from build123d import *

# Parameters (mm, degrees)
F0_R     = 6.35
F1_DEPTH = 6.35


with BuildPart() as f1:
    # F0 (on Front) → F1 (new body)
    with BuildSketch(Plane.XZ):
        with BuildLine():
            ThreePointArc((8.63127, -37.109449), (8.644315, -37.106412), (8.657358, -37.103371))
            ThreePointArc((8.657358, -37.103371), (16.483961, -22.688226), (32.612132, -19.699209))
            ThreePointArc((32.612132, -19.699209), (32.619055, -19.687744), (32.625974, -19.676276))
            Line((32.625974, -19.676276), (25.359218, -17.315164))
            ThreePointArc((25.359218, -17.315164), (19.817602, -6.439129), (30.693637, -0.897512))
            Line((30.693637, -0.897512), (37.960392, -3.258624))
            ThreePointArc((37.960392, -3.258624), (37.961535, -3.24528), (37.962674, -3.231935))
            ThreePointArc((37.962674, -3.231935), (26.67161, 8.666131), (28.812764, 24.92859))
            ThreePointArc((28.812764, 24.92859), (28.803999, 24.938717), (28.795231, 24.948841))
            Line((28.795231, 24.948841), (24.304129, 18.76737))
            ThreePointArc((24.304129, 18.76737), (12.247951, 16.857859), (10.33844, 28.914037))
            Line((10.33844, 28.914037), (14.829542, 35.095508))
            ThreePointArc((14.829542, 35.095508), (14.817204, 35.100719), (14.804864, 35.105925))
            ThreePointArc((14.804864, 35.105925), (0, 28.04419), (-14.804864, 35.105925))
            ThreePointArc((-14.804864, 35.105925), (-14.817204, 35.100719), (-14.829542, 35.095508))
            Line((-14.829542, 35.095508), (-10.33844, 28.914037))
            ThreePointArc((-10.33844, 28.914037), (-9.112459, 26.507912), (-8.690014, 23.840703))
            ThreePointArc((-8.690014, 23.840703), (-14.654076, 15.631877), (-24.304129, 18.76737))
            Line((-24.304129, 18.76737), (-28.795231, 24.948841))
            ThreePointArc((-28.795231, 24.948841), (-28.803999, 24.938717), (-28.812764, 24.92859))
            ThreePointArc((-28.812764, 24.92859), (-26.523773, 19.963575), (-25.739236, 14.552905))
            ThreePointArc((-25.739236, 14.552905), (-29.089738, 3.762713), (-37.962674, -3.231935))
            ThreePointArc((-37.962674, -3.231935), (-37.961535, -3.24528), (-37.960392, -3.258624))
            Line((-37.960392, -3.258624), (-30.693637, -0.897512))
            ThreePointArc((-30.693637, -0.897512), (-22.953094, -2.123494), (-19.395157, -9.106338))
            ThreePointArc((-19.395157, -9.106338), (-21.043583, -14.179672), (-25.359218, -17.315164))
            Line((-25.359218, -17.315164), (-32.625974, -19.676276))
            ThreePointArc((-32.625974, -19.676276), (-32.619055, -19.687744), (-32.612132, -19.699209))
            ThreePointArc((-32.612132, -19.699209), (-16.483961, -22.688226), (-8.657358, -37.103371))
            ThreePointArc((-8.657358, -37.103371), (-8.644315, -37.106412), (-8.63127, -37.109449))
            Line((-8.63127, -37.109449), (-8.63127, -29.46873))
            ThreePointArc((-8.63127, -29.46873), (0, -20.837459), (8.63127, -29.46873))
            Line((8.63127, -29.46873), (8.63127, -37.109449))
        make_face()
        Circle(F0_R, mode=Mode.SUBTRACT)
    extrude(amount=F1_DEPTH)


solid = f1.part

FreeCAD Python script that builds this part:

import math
import FreeCAD as App
import Part
import Sketcher
Q = App.Units.Quantity

doc = App.newDocument("Part")
params = doc.addObject("Spreadsheet::Sheet", "Params")
for row, (alias, value) in enumerate([
    ("sketch1_diameter", "0.5 in"),
    ("sketch1_radius", "0.75 in"),
    ("pad1_length", "0.25 in"),
], start=1):
    params.set(f"A{row}", alias)
    params.set(f"B{row}", "=" + value)
    params.setAlias(f"B{row}", alias)

body = doc.addObject("PartDesign::Body", "Body")

# Sketch on XZ plane
sketch1 = body.newObject("Sketcher::SketchObject", "Sketch")
sketch1.AttachmentSupport = (doc.getObject("XZ_Plane"), [""])
sketch1.MapMode = "FlatFace"
sketch1.addGeometry(Part.ArcOfCircle(Part.Circle(App.Vector(-0.714, 3.06, 0), App.Vector(0, 0, 1), 41.242), math.radians(-76.9), math.radians(-76.87)), False)
sketch1.addGeometry(Part.ArcOfCircle(Part.Circle(App.Vector(27.681, -38.1, 0), App.Vector(0, 0, 1), 19.05), math.radians(75), math.radians(177)), False)
sketch1.addGeometry(Part.ArcOfCircle(Part.Circle(App.Vector(1.749, -1.055, 0), App.Vector(0, 0, 1), 36.058), math.radians(-31.14), math.radians(-31.09)), False)
sketch1.addGeometry(Part.LineSegment(App.Vector(32.626, -19.676, 0), App.Vector(25.359, -17.315, 0)), False)
sketch1.addGeometry(Part.ArcOfCircle(Part.Circle(App.Vector(28.026, -9.106, 0), App.Vector(0, 0, 1), 8.631), math.radians(72), math.radians(252)), False)
sketch1.addGeometry(Part.LineSegment(App.Vector(30.694, -0.898, 0), App.Vector(37.96, -3.259, 0)), False)
sketch1.addGeometry(Part.ArcOfCircle(Part.Circle(App.Vector(-5.944, 0.509, 0), App.Vector(0, 0, 1), 44.066), math.radians(-4.9), math.radians(-4.87)), False)
sketch1.addGeometry(Part.ArcOfCircle(Part.Circle(App.Vector(44.789, 14.553, 0), App.Vector(0, 0, 1), 19.05), math.radians(147), math.radians(249)), False)
sketch1.addGeometry(Part.ArcOfCircle(Part.Circle(App.Vector(-3.243, -2.807, 0), App.Vector(0, 0, 1), 42.389), math.radians(40.87), math.radians(40.9)), False)
sketch1.addGeometry(Part.LineSegment(App.Vector(28.795, 24.949, 0), App.Vector(24.304, 18.767, 0)), False)
sketch1.addGeometry(Part.ArcOfCircle(Part.Circle(App.Vector(17.321, 23.841, 0), App.Vector(0, 0, 1), 8.631), math.radians(144), math.radians(324)), False)
sketch1.addGeometry(Part.LineSegment(App.Vector(10.338, 28.914, 0), App.Vector(14.83, 35.096, 0)), False)
sketch1.addGeometry(Part.ArcOfCircle(Part.Circle(App.Vector(1.861, 4.407, 0), App.Vector(0, 0, 1), 33.316), math.radians(67.09), math.radians(67.14)), False)
sketch1.addGeometry(Part.ArcOfCircle(Part.Circle(App.Vector(0, 47.094, 0), App.Vector(0, 0, 1), 19.05), math.radians(-141), math.radians(-39)), False)
sketch1.addGeometry(Part.ArcOfCircle(Part.Circle(App.Vector(-1.861, 4.407, 0), App.Vector(0, 0, 1), 33.316), math.radians(112.86), math.radians(112.91)), False)
sketch1.addGeometry(Part.LineSegment(App.Vector(-14.83, 35.096, 0), App.Vector(-10.338, 28.914, 0)), False)
sketch1.addGeometry(Part.ArcOfCircle(Part.Circle(App.Vector(-17.321, 23.841, 0), App.Vector(0, 0, 1), 8.631), math.radians(0), math.radians(36)), False)
sketch1.addGeometry(Part.ArcOfCircle(Part.Circle(App.Vector(-17.321, 23.841, 0), App.Vector(0, 0, 1), 8.631), math.radians(-144), math.radians(0)), False)
sketch1.addGeometry(Part.LineSegment(App.Vector(-24.304, 18.767, 0), App.Vector(-28.795, 24.949, 0)), False)
sketch1.addGeometry(Part.ArcOfCircle(Part.Circle(App.Vector(3.243, -2.807, 0), App.Vector(0, 0, 1), 42.389), math.radians(139.1), math.radians(139.13)), False)
sketch1.addGeometry(Part.ArcOfCircle(Part.Circle(App.Vector(-44.789, 14.553, 0), App.Vector(0, 0, 1), 19.05), math.radians(0), math.radians(33)), False)
sketch1.addGeometry(Part.ArcOfCircle(Part.Circle(App.Vector(-44.789, 14.553, 0), App.Vector(0, 0, 1), 19.05), math.radians(-69), math.radians(0)), False)
sketch1.addGeometry(Part.ArcOfCircle(Part.Circle(App.Vector(5.944, 0.509, 0), App.Vector(0, 0, 1), 44.066), math.radians(-175.13), math.radians(-175.1)), False)
sketch1.addGeometry(Part.LineSegment(App.Vector(-37.96, -3.259, 0), App.Vector(-30.694, -0.898, 0)), False)
sketch1.addGeometry(Part.ArcOfCircle(Part.Circle(App.Vector(-28.026, -9.106, 0), App.Vector(0, 0, 1), 8.631), math.radians(0), math.radians(108)), False)
sketch1.addGeometry(Part.ArcOfCircle(Part.Circle(App.Vector(-28.026, -9.106, 0), App.Vector(0, 0, 1), 8.631), math.radians(-72), math.radians(0)), False)
sketch1.addGeometry(Part.LineSegment(App.Vector(-25.359, -17.315, 0), App.Vector(-32.626, -19.676, 0)), False)
sketch1.addGeometry(Part.ArcOfCircle(Part.Circle(App.Vector(-1.749, -1.055, 0), App.Vector(0, 0, 1), 36.058), math.radians(-148.91), math.radians(-148.86)), False)
sketch1.addGeometry(Part.ArcOfCircle(Part.Circle(App.Vector(-27.681, -38.1, 0), App.Vector(0, 0, 1), 19.05), math.radians(3), math.radians(105)), False)
sketch1.addGeometry(Part.ArcOfCircle(Part.Circle(App.Vector(0.714, 3.06, 0), App.Vector(0, 0, 1), 41.242), math.radians(-103.13), math.radians(-103.1)), False)
sketch1.addGeometry(Part.LineSegment(App.Vector(-8.631, -37.109, 0), App.Vector(-8.631, -29.469, 0)), False)
sketch1.addGeometry(Part.ArcOfCircle(Part.Circle(App.Vector(0, -29.469, 0), App.Vector(0, 0, 1), 8.631), math.radians(0), math.radians(180)), False)
sketch1.addGeometry(Part.LineSegment(App.Vector(8.631, -29.469, 0), App.Vector(8.631, -37.109, 0)), False)
sketch1.addGeometry(Part.Circle(App.Vector(0, 0, 0), App.Vector(0, 0, 1), 6.35), False)
sketch1.addConstraint(Sketcher.Constraint("Coincident", 0, 2, 1, 2))
sketch1.addConstraint(Sketcher.Constraint("Coincident", 1, 1, 2, 1))
sketch1.addConstraint(Sketcher.Constraint("Coincident", 2, 2, 3, 1))
sketch1.addConstraint(Sketcher.Constraint("Tangent", 3, 2, 4, 2))
sketch1.addConstraint(Sketcher.Constraint("Tangent", 4, 1, 5, 1))
sketch1.addConstraint(Sketcher.Constraint("Coincident", 5, 2, 6, 1))
sketch1.addConstraint(Sketcher.Constraint("Coincident", 6, 2, 7, 2))
sketch1.addConstraint(Sketcher.Constraint("Coincident", 7, 1, 8, 1))
sketch1.addConstraint(Sketcher.Constraint("Coincident", 8, 2, 9, 1))
sketch1.addConstraint(Sketcher.Constraint("Tangent", 9, 2, 10, 2))
sketch1.addConstraint(Sketcher.Constraint("Tangent", 10, 1, 11, 1))
sketch1.addConstraint(Sketcher.Constraint("Coincident", 11, 2, 12, 1))
sketch1.addConstraint(Sketcher.Constraint("Coincident", 12, 2, 13, 2))
sketch1.addConstraint(Sketcher.Constraint("Coincident", 13, 1, 14, 1))
sketch1.addConstraint(Sketcher.Constraint("Coincident", 14, 2, 15, 1))
sketch1.addConstraint(Sketcher.Constraint("Tangent", 15, 2, 16, 2))
sketch1.addConstraint(Sketcher.Constraint("Tangent", 16, 1, 17, 2))
sketch1.addConstraint(Sketcher.Constraint("Tangent", 17, 1, 18, 1))
sketch1.addConstraint(Sketcher.Constraint("Coincident", 18, 2, 19, 1))
sketch1.addConstraint(Sketcher.Constraint("Coincident", 19, 2, 20, 2))
sketch1.addConstraint(Sketcher.Constraint("Tangent", 20, 1, 21, 2))
sketch1.addConstraint(Sketcher.Constraint("Coincident", 21, 1, 22, 1))
sketch1.addConstraint(Sketcher.Constraint("Coincident", 22, 2, 23, 1))
sketch1.addConstraint(Sketcher.Constraint("Tangent", 23, 2, 24, 2))
sketch1.addConstraint(Sketcher.Constraint("Tangent", 24, 1, 25, 2))
sketch1.addConstraint(Sketcher.Constraint("Tangent", 25, 1, 26, 1))
sketch1.addConstraint(Sketcher.Constraint("Coincident", 26, 2, 27, 1))
sketch1.addConstraint(Sketcher.Constraint("Coincident", 27, 2, 28, 2))
sketch1.addConstraint(Sketcher.Constraint("Coincident", 28, 1, 29, 1))
sketch1.addConstraint(Sketcher.Constraint("Coincident", 29, 2, 30, 1))
sketch1.addConstraint(Sketcher.Constraint("Tangent", 30, 2, 31, 2))
sketch1.addConstraint(Sketcher.Constraint("Tangent", 31, 1, 32, 1))
sketch1.addConstraint(Sketcher.Constraint("Coincident", 32, 2, 0, 1))
sketch1.addConstraint(Sketcher.Constraint("Vertical", 30))
sketch1.addConstraint(Sketcher.Constraint("Vertical", 32))
sketch1.addConstraint(Sketcher.Constraint("Coincident", 33, 3, -1, 1))
sketch1.addConstraint(Sketcher.Constraint("Equal", 1, 7))
sketch1.addConstraint(Sketcher.Constraint("Equal", 4, 10))
sketch1.addConstraint(Sketcher.Constraint("Equal", 7, 13))
sketch1.addConstraint(Sketcher.Constraint("Equal", 12, 14))
sketch1.addConstraint(Sketcher.Constraint("Equal", 10, 17))
sketch1.addConstraint(Sketcher.Constraint("Equal", 8, 19))
sketch1.addConstraint(Sketcher.Constraint("Equal", 13, 21))
sketch1.addConstraint(Sketcher.Constraint("Equal", 6, 22))
sketch1.addConstraint(Sketcher.Constraint("Equal", 17, 24))
sketch1.addConstraint(Sketcher.Constraint("Equal", 24, 25))
sketch1.addConstraint(Sketcher.Constraint("Equal", 2, 27))
sketch1.addConstraint(Sketcher.Constraint("Equal", 21, 28))
sketch1.addConstraint(Sketcher.Constraint("Equal", 0, 29))
sketch1.addConstraint(Sketcher.Constraint("Equal", 25, 31))
sketch1.addConstraint(Sketcher.Constraint("Symmetric", 12, 3, 14, 3, -2))
sketch1.addConstraint(Sketcher.Constraint("Symmetric", 10, 3, 17, 3, -2))
sketch1.addConstraint(Sketcher.Constraint("Symmetric", 8, 3, 19, 3, -2))
sketch1.addConstraint(Sketcher.Constraint("Symmetric", 7, 3, 20, 3, -2))
sketch1.addConstraint(Sketcher.Constraint("Symmetric", 6, 3, 22, 3, -2))
sketch1.addConstraint(Sketcher.Constraint("Symmetric", 4, 3, 24, 3, -2))
sketch1.addConstraint(Sketcher.Constraint("Symmetric", 2, 3, 27, 3, -2))
sketch1.addConstraint(Sketcher.Constraint("Symmetric", 1, 3, 28, 3, -2))
sketch1.addConstraint(Sketcher.Constraint("Symmetric", 0, 3, 29, 3, -2))
sketch1.addConstraint(Sketcher.Constraint("Symmetric", 10, 1, 15, 2, -2))
sketch1.addConstraint(Sketcher.Constraint("PointOnObject", 13, 3, -2))
sketch1.addConstraint(Sketcher.Constraint("PointOnObject", 31, 3, -2))
sketch1.addConstraint(Sketcher.Constraint("Parallel", 3, 5))
sketch1.addConstraint(Sketcher.Constraint("Parallel", 9, 11))
sketch1.addConstraint(Sketcher.Constraint("Parallel", 15, 18))
sketch1.addConstraint(Sketcher.Constraint("Parallel", 23, 26))
sketch1.addConstraint(Sketcher.Constraint("Horizontal", 17, 3, 16, 1))
sketch1.addConstraint(Sketcher.Constraint("Horizontal", 7, 1, 19, 2))
sketch1.addConstraint(Sketcher.Constraint("Horizontal", 21, 3, 20, 1))
sketch1.addConstraint(Sketcher.Constraint("Horizontal", 5, 2, 22, 2))
sketch1.addConstraint(Sketcher.Constraint("Horizontal", 25, 3, 24, 1))
sketch1.addConstraint(Sketcher.Constraint("Equal", 3, 5))
sketch1.addConstraint(Sketcher.Constraint("Equal", 5, 9))
sketch1.addConstraint(Sketcher.Constraint("Equal", 9, 11))
sketch1.addConstraint(Sketcher.Constraint("Diameter", 33, Q("0.5 in")))
sketch1.addConstraint(Sketcher.Constraint("Radius", 1, Q("0.75 in")))
sketch1.addConstraint(Sketcher.Constraint("Angle", 3, Q("162.000001 deg")))
sketch1.addConstraint(Sketcher.Constraint("Angle", 9, Q("-126.000003 deg")))
sketch1.addConstraint(Sketcher.Constraint("DistanceY", 1, 3, -1, 1, Q("1.5 in")))
sketch1.addConstraint(Sketcher.Constraint("DistanceX", 28, 3, 29, 2, Q("0.75 in")))
sketch1.addConstraint(Sketcher.Constraint("Radius", 0, Q("41.242082 mm")))
sketch1.addConstraint(Sketcher.Constraint("Radius", 4, Q("8.631271 mm")))
sketch1.addConstraint(Sketcher.Constraint("Radius", 6, Q("44.066068 mm")))
sketch1.addConstraint(Sketcher.Constraint("Radius", 8, Q("42.38888 mm")))
sketch1.addConstraint(Sketcher.Constraint("Radius", 12, Q("33.315881 mm")))
sketch1.addConstraint(Sketcher.Constraint("Radius", 2, Q("36.057938 mm")))
sketch1.addConstraint(Sketcher.Constraint("DistanceX", 0, 3, 4, 3, Q("1.1315001 in")))
sketch1.addConstraint(Sketcher.Constraint("DistanceX", 11, 2, 10, 3, Q("0.0981001 in")))
sketch1.addConstraint(Sketcher.Constraint("DistanceY", 30, 1, 30, 2, Q("7.640719 mm")))
sketch1.addConstraint(Sketcher.Constraint("DistanceX", 16, 3, -1, 1, Q("17.321299 mm")))
sketch1.addConstraint(Sketcher.Constraint("DistanceY", -1, 1, 16, 3, Q("23.840699 mm")))
sketch1.addConstraint(Sketcher.Constraint("DistanceX", 6, 3, 1, 3, Q("33.625601 mm")))
sketch1.addConstraint(Sketcher.Constraint("DistanceY", 7, 3, 10, 3, Q("9.287798 mm")))
sketch1.addConstraint(Sketcher.Constraint("DistanceY", 6, 3, 12, 3, Q("3.898499 mm")))
sketch1.addConstraint(Sketcher.Constraint("DistanceX", 8, 3, 14, 3, Q("1.381802 mm")))
sketch1.addConstraint(Sketcher.Constraint("DistanceX", 16, 3, 12, 3, Q("19.182302 mm")))
sketch1.addConstraint(Sketcher.Constraint("DistanceX", 22, 3, 1, 1, Q("26.667801 mm")))
sketch1.addConstraint(Sketcher.Constraint("DistanceX", 4, 1, 7, 3, Q("14.0956 mm")))
sketch1.addConstraint(Sketcher.Constraint("DistanceX", 12, 2, 7, 1, Q("14.0079 mm")))
sketch1.addConstraint(Sketcher.Constraint("DistanceY", -1, 1, 0, 3, Q("3.059959 mm")))
sketch1.addConstraint(Sketcher.Constraint("DistanceY", 2, 3, -1, 1, Q("1.054791 mm")))
sketch1.setExpression("Constraints[74]", "Params.sketch1_diameter")
sketch1.setExpression("Constraints[75]", "Params.sketch1_radius")
pad1 = body.newObject("PartDesign::Pad", "Pad")
pad1.Profile = sketch1
pad1.setExpression("Length", "Params.pad1_length")

doc.recompute()
